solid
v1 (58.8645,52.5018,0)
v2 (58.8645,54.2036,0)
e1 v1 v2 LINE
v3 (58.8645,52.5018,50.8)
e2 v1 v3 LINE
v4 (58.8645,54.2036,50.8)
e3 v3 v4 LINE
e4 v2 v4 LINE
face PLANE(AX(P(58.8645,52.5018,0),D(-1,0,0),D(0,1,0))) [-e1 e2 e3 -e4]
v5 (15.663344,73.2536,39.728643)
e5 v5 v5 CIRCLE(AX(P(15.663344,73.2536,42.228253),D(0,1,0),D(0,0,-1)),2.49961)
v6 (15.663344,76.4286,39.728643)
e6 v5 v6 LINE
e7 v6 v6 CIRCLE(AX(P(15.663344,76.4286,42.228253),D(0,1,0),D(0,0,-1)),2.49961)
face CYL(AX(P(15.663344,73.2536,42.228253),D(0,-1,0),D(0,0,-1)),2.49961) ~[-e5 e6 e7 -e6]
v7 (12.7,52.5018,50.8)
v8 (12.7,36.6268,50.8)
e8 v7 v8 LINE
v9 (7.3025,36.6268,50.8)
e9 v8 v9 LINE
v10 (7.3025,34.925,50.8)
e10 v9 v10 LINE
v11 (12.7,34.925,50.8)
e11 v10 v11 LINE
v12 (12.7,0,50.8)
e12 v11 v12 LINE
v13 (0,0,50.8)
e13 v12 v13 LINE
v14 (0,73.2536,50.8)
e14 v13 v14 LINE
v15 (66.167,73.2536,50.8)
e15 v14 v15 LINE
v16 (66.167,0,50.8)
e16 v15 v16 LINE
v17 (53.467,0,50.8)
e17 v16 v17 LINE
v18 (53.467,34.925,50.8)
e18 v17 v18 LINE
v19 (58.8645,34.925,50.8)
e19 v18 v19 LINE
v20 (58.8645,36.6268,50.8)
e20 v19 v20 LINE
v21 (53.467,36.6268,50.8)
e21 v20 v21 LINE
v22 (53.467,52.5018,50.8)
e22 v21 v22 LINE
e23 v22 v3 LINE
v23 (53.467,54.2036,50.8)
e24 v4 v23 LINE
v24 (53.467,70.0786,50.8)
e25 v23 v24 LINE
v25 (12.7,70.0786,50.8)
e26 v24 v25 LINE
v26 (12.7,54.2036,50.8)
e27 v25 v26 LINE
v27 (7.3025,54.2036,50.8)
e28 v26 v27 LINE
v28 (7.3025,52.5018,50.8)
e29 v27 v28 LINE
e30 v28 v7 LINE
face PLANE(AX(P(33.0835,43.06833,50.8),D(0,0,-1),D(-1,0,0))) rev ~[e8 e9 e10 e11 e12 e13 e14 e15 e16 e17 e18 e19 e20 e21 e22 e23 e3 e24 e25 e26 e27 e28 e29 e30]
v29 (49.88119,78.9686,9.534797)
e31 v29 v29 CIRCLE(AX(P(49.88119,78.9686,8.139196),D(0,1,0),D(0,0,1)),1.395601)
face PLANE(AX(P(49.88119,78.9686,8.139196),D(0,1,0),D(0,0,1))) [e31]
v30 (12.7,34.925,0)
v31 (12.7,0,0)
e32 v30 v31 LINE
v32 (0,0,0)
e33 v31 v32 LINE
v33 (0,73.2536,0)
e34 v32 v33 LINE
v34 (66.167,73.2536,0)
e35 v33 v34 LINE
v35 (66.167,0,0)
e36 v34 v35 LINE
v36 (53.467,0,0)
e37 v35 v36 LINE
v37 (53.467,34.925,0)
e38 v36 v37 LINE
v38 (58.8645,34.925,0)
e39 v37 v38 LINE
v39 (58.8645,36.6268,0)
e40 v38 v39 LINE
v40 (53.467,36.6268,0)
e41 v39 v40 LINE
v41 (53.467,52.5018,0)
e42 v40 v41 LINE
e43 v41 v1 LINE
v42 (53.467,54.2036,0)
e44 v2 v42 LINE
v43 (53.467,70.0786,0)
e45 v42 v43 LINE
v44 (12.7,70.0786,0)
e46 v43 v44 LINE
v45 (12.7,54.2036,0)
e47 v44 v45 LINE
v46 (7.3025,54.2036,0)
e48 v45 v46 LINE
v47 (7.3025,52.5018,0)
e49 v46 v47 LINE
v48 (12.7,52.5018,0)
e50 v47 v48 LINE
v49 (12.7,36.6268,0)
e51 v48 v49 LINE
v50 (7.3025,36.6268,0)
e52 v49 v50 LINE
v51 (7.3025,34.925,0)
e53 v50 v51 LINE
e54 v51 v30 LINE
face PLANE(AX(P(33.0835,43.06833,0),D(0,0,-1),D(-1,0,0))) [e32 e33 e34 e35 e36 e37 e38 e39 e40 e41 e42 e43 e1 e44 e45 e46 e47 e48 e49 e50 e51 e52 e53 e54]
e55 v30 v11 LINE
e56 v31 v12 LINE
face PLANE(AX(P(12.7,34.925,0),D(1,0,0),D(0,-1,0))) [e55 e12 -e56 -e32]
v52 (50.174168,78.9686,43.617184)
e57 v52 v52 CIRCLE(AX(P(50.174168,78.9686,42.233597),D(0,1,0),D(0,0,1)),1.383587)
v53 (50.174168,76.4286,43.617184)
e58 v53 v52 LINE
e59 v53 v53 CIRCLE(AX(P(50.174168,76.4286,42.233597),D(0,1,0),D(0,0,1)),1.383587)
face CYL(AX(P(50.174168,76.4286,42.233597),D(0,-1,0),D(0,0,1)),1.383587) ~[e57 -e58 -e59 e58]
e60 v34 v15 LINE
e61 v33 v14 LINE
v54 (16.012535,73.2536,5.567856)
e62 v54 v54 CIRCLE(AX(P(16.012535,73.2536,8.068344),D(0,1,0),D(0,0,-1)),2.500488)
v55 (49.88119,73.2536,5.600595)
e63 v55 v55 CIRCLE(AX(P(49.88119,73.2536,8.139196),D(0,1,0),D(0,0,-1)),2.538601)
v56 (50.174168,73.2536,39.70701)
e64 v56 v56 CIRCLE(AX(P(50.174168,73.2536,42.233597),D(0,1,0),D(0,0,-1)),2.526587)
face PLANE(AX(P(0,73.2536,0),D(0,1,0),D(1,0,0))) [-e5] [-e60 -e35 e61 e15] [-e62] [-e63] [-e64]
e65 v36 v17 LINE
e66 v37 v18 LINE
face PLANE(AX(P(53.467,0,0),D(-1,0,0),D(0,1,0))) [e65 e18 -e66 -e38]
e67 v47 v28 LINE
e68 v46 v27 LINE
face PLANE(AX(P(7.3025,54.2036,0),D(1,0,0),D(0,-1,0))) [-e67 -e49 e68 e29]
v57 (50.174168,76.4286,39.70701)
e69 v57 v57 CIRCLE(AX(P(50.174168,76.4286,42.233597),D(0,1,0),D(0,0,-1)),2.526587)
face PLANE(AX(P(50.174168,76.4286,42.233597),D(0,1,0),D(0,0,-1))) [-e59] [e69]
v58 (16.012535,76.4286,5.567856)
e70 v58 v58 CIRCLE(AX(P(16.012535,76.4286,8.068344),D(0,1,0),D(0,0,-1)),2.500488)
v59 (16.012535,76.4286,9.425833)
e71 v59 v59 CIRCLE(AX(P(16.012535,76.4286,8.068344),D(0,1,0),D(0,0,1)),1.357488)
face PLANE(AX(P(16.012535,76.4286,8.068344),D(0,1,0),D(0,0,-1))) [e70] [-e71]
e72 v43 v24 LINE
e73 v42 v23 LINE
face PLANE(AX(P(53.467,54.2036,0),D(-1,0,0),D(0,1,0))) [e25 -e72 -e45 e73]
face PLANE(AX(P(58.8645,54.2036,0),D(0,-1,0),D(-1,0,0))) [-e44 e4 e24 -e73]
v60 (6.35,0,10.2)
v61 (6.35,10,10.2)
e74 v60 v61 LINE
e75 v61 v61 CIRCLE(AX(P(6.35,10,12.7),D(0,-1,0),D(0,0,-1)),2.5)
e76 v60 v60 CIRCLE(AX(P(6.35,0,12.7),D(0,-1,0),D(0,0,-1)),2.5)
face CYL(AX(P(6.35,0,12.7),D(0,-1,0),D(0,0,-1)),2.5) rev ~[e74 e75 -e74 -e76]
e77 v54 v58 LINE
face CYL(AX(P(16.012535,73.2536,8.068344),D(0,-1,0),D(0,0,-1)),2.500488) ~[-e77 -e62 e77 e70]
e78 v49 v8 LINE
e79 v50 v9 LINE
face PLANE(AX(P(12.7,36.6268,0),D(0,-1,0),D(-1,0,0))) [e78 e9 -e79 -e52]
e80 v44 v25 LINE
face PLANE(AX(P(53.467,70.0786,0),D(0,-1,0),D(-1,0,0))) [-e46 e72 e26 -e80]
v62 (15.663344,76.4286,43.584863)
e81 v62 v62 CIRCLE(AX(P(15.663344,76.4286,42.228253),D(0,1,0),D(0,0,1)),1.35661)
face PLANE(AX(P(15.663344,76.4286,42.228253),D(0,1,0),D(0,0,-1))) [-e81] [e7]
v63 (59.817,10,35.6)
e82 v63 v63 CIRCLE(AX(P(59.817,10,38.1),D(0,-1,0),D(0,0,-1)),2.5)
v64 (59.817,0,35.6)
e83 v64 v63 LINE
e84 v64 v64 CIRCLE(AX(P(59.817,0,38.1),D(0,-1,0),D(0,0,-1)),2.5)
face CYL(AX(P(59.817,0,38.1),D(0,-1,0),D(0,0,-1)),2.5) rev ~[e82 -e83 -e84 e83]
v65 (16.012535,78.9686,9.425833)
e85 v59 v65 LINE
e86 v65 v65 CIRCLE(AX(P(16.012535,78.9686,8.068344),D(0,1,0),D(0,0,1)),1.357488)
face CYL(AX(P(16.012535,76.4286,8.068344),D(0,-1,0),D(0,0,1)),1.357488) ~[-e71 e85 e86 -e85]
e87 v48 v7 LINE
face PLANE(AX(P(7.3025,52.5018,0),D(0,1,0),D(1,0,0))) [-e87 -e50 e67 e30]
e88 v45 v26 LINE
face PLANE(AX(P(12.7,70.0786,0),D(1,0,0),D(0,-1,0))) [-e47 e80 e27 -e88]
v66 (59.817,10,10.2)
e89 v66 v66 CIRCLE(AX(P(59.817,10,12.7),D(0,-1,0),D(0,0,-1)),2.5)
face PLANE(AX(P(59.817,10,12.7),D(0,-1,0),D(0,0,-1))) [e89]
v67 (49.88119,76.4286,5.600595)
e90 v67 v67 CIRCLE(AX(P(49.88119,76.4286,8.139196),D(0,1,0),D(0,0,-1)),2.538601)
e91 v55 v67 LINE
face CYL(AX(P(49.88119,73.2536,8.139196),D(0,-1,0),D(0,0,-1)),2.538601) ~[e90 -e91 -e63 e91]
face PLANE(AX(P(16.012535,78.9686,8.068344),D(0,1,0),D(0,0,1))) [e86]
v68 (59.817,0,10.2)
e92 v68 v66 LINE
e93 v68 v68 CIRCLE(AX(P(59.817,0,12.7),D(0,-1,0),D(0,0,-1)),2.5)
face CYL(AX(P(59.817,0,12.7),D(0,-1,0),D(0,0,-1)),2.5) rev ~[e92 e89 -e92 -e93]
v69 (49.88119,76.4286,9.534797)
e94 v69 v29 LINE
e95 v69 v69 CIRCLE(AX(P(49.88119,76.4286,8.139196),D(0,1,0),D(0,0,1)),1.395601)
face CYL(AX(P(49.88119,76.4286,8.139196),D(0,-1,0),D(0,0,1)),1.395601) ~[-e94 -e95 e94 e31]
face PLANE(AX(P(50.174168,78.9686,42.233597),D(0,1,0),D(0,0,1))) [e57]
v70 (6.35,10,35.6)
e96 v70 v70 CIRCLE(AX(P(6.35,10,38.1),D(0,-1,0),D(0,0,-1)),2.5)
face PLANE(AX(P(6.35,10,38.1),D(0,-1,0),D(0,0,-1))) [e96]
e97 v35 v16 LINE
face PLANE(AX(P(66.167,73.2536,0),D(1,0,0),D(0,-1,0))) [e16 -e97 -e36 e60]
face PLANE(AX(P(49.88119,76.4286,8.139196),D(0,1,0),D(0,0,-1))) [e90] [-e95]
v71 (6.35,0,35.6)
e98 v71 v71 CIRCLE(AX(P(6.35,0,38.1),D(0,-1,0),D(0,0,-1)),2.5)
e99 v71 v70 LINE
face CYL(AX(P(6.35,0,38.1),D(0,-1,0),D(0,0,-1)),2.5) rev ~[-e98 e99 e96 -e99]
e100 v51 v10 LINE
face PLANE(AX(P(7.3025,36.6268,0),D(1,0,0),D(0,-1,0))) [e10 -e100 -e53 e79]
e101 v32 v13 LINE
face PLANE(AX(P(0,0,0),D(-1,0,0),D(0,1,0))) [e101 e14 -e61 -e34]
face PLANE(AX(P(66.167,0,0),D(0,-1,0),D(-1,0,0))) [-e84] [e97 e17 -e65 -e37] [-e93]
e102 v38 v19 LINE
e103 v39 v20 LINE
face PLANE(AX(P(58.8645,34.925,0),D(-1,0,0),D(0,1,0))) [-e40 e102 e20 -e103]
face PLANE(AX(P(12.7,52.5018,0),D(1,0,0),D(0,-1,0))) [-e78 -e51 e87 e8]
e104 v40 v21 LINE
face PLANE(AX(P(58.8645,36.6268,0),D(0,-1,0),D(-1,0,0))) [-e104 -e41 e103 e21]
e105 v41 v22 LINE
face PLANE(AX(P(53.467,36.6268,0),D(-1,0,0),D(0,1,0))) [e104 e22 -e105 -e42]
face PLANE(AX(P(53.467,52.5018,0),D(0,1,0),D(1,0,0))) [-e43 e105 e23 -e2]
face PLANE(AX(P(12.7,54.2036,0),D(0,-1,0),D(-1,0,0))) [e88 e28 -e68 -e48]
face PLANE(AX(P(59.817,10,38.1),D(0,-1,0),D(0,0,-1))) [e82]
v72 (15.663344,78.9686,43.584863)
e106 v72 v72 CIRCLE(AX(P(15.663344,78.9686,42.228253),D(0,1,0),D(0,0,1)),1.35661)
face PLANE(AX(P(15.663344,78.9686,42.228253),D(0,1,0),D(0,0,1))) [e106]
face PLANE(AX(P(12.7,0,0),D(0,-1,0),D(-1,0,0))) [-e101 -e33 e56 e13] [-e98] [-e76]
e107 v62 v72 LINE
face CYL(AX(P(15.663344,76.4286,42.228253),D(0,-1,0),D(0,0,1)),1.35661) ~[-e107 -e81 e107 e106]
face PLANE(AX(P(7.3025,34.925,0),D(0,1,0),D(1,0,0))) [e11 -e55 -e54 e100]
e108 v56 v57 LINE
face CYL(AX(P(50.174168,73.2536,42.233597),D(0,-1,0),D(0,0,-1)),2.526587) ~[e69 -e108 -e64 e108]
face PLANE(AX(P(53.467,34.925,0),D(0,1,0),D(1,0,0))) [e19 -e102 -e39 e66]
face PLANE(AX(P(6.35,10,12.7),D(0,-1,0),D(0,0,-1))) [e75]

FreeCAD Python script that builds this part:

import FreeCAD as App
import Part
import Sketcher

V = App.Vector
Q = App.Units.Quantity

doc = App.newDocument("Part")
body = doc.addObject("PartDesign::Body", "Body")

# Sketch on XY plane
sketch1 = body.newObject("Sketcher::SketchObject", "Sketch")
sketch1.AttachmentSupport = (doc.getObject("XY_Plane"), [""])
sketch1.MapMode = "FlatFace"
sketch1.addGeometry(Part.LineSegment(V(12.7, 54.2, 0), V(12.7, 70.1, 0)), False)
sketch1.addGeometry(Part.LineSegment(V(12.7, 70.1, 0), V(53.5, 70.1, 0)), False)
sketch1.addGeometry(Part.LineSegment(V(53.5, 70.1, 0), V(53.5, 54.2, 0)), False)
sketch1.addGeometry(Part.LineSegment(V(53.5, 54.2, 0), V(58.9, 54.2, 0)), False)
sketch1.addGeometry(Part.LineSegment(V(58.9, 54.2, 0), V(58.9, 52.5, 0)), False)
sketch1.addGeometry(Part.LineSegment(V(58.9, 52.5, 0), V(53.5, 52.5, 0)), False)
sketch1.addGeometry(Part.LineSegment(V(53.5, 52.5, 0), V(53.5, 36.6, 0)), False)
sketch1.addGeometry(Part.LineSegment(V(53.5, 36.6, 0), V(58.9, 36.6, 0)), False)
sketch1.addGeometry(Part.LineSegment(V(58.9, 36.6, 0), V(58.9, 34.9, 0)), False)
sketch1.addGeometry(Part.LineSegment(V(58.9, 34.9, 0), V(53.5, 34.9, 0)), False)
sketch1.addGeometry(Part.LineSegment(V(53.5, 34.9, 0), V(53.5, 0, 0)), False)
sketch1.addGeometry(Part.LineSegment(V(53.5, 0, 0), V(66.2, 0, 0)), False)
sketch1.addGeometry(Part.LineSegment(V(66.2, 0, 0), V(66.2, 73.3, 0)), False)
sketch1.addGeometry(Part.LineSegment(V(66.2, 73.3, 0), V(0, 73.3, 0)), False)
sketch1.addGeometry(Part.LineSegment(V(0, 73.3, 0), V(0, 0, 0)), False)
sketch1.addGeometry(Part.LineSegment(V(0, 0, 0), V(12.7, 0, 0)), False)
sketch1.addGeometry(Part.LineSegment(V(12.7, 0, 0), V(12.7, 34.9, 0)), False)
sketch1.addGeometry(Part.LineSegment(V(12.7, 34.9, 0), V(7.3, 34.9, 0)), False)
sketch1.addGeometry(Part.LineSegment(V(7.3, 34.9, 0), V(7.3, 36.6, 0)), False)
sketch1.addGeometry(Part.LineSegment(V(7.3, 36.6, 0), V(12.7, 36.6, 0)), False)
sketch1.addGeometry(Part.LineSegment(V(12.7, 36.6, 0), V(12.7, 52.5, 0)), False)
sketch1.addGeometry(Part.LineSegment(V(12.7, 52.5, 0), V(7.3, 52.5, 0)), False)
sketch1.addGeometry(Part.LineSegment(V(7.3, 52.5, 0), V(7.3, 54.2, 0)), False)
sketch1.addGeometry(Part.LineSegment(V(7.3, 54.2, 0), V(12.7, 54.2, 0)), False)
sketch1.addConstraint(Sketcher.Constraint("Coincident", 0, 2, 1, 1))
sketch1.addConstraint(Sketcher.Constraint("Coincident", 1, 2, 2, 1))
sketch1.addConstraint(Sketcher.Constraint("Coincident", 2, 2, 3, 1))
sketch1.addConstraint(Sketcher.Constraint("Coincident", 3, 2, 4, 1))
sketch1.addConstraint(Sketcher.Constraint("Coincident", 4, 2, 5, 1))
sketch1.addConstraint(Sketcher.Constraint("Coincident", 5, 2, 6, 1))
sketch1.addConstraint(Sketcher.Constraint("Coincident", 6, 2, 7, 1))
sketch1.addConstraint(Sketcher.Constraint("Coincident", 7, 2, 8, 1))
sketch1.addConstraint(Sketcher.Constraint("Coincident", 8, 2, 9, 1))
sketch1.addConstraint(Sketcher.Constraint("Coincident", 9, 2, 10, 1))
sketch1.addConstraint(Sketcher.Constraint("Coincident", 10, 2, 11, 1))
sketch1.addConstraint(Sketcher.Constraint("Coincident", 11, 2, 12, 1))
sketch1.addConstraint(Sketcher.Constraint("Coincident", 12, 2, 13, 1))
sketch1.addConstraint(Sketcher.Constraint("Coincident", 13, 2, 14, 1))
sketch1.addConstraint(Sketcher.Constraint("Coincident", 14, 2, 15, 1))
sketch1.addConstraint(Sketcher.Constraint("Coincident", 15, 2, 16, 1))
sketch1.addConstraint(Sketcher.Constraint("Coincident", 16, 2, 17, 1))
sketch1.addConstraint(Sketcher.Constraint("Coincident", 17, 2, 18, 1))
sketch1.addConstraint(Sketcher.Constraint("Coincident", 18, 2, 19, 1))
sketch1.addConstraint(Sketcher.Constraint("Coincident", 19, 2, 20, 1))
sketch1.addConstraint(Sketcher.Constraint("Coincident", 20, 2, 21, 1))
sketch1.addConstraint(Sketcher.Constraint("Coincident", 21, 2, 22, 1))
sketch1.addConstraint(Sketcher.Constraint("Coincident", 22, 2, 23, 1))
sketch1.addConstraint(Sketcher.Constraint("Coincident", 23, 2, 0, 1))
sketch1.addConstraint(Sketcher.Constraint("Vertical", 0))
sketch1.addConstraint(Sketcher.Constraint("Horizontal", 1))
sketch1.addConstraint(Sketcher.Constraint("Vertical", 2))
sketch1.addConstraint(Sketcher.Constraint("Horizontal", 3))
sketch1.addConstraint(Sketcher.Constraint("Vertical", 4))
sketch1.addConstraint(Sketcher.Constraint("Horizontal", 5))
sketch1.addConstraint(Sketcher.Constraint("Vertical", 6))
sketch1.addConstraint(Sketcher.Constraint("Horizontal", 7))
sketch1.addConstraint(Sketcher.Constraint("Vertical", 8))
sketch1.addConstraint(Sketcher.Constraint("Horizontal", 9))
sketch1.addConstraint(Sketcher.Constraint("Vertical", 10))
sketch1.addConstraint(Sketcher.Constraint("Horizontal", 11))
sketch1.addConstraint(Sketcher.Constraint("Vertical", 12))
sketch1.addConstraint(Sketcher.Constraint("Horizontal", 13))
sketch1.addConstraint(Sketcher.Constraint("Vertical", 14))
sketch1.addConstraint(Sketcher.Constraint("Horizontal", 15))
sketch1.addConstraint(Sketcher.Constraint("Vertical", 16))
sketch1.addConstraint(Sketcher.Constraint("Horizontal", 17))
sketch1.addConstraint(Sketcher.Constraint("Vertical", 18))
sketch1.addConstraint(Sketcher.Constraint("Horizontal", 19))
sketch1.addConstraint(Sketcher.Constraint("Vertical", 20))
sketch1.addConstraint(Sketcher.Constraint("Horizontal", 21))
sketch1.addConstraint(Sketcher.Constraint("Vertical", 22))
sketch1.addConstraint(Sketcher.Constraint("Horizontal", 23))
sketch1.addConstraint(Sketcher.Constraint("Coincident", 14, 2, -1, 1))
sketch1.addConstraint(Sketcher.Constraint("PointOnObject", 10, 2, -1))
sketch1.addConstraint(Sketcher.Constraint("Horizontal", 9, 2, 16, 2))
sketch1.addConstraint(Sketcher.Constraint("Horizontal", 7, 2, 18, 2))
sketch1.addConstraint(Sketcher.Constraint("Horizontal", 5, 2, 20, 2))
sketch1.addConstraint(Sketcher.Constraint("Horizontal", 3, 2, 22, 2))
sketch1.addConstraint(Sketcher.Constraint("Vertical", 2, 2, 5, 2))
sketch1.addConstraint(Sketcher.Constraint("Vertical", 4, 2, 7, 2))
sketch1.addConstraint(Sketcher.Constraint("Vertical", 6, 2, 9, 2))
sketch1.addConstraint(Sketcher.Constraint("Vertical", 0, 2, 15, 2))
sketch1.addConstraint(Sketcher.Constraint("Vertical", 16, 2, 19, 2))
sketch1.addConstraint(Sketcher.Constraint("Vertical", 18, 2, 21, 2))
sketch1.addConstraint(Sketcher.Constraint("Equal", 11, 15))
sketch1.addConstraint(Sketcher.Constraint("Equal", 9, 17))
sketch1.addConstraint(Sketcher.Constraint("Equal", 2, 6))
sketch1.addConstraint(Sketcher.Constraint("Equal", 4, 8))
sketch1.addConstraint(Sketcher.Constraint("DistanceX", 11, 1, 11, 2, Q("0.5 in")))
sketch1.addConstraint(Sketcher.Constraint("DistanceX", 1, 1, 1, 2, Q("1.605 in")))
sketch1.addConstraint(Sketcher.Constraint("DistanceY", 0, 1, 0, 2, Q("0.625 in")))
sketch1.addConstraint(Sketcher.Constraint("DistanceY", 4, 2, 4, 1, Q("0.067 in")))
sketch1.addConstraint(Sketcher.Constraint("DistanceY", 10, 2, 10, 1, Q("1.375 in")))
sketch1.addConstraint(Sketcher.Constraint("DistanceY", 12, 1, 12, 2, Q("2.884 in")))
sketch1.addConstraint(Sketcher.Constraint("DistanceX", 3, 1, 3, 2, Q("0.2125 in")))
pad1 = body.newObject("PartDesign::Pad", "Pad")
pad1.Profile = sketch1
pad1.Length = Q("2 in")

# Sketch on XZ plane
sketch2 = body.newObject("Sketcher::SketchObject", "Sketch001")
sketch2.AttachmentSupport = (doc.getObject("XZ_Plane"), [""])
sketch2.MapMode = "FlatFace"
sketch2.AttachmentOffset = App.Placement(V(0, 0, -2.884 * 25.4), App.Rotation())
sketch2.addGeometry(Part.Circle(V(16, 8.1, 0), V(0, 0, 1), 2.5), False)
sketch2.addGeometry(Part.Circle(V(15.7, 42.2, 0), V(0, 0, 1), 2.5), False)
sketch2.addGeometry(Part.Circle(V(50.2, 42.2, 0), V(0, 0, 1), 2.5), False)
sketch2.addGeometry(Part.Circle(V(49.9, 8.1, 0), V(0, 0, 1), 2.5), False)
sketch2.addConstraint(Sketcher.Constraint("Diameter", 3, Q("5.077202 mm")))
sketch2.addConstraint(Sketcher.Constraint("Diameter", 1, Q("4.99922 mm")))
sketch2.addConstraint(Sketcher.Constraint("Diameter", 0, Q("5.000977 mm")))
sketch2.addConstraint(Sketcher.Constraint("Diameter", 2, Q("5.053174 mm")))
sketch2.addConstraint(Sketcher.Constraint("DistanceY", 3, 3, 2, 3, Q("34.094401 mm")))
sketch2.addConstraint(Sketcher.Constraint("DistanceX", -1, 1, 3, 3, Q("49.88119 mm")))
sketch2.addConstraint(Sketcher.Constraint("DistanceX", 1, 3, 0, 3, Q("0.349191 mm")))
sketch2.addConstraint(Sketcher.Constraint("DistanceY", 0, 3, 1, 3, Q("34.159909 mm")))
sketch2.addConstraint(Sketcher.Constraint("DistanceY", 0, 3, 3, 3, Q("0.070852 mm")))
sketch2.addConstraint(Sketcher.Constraint("DistanceX", 3, 3, 2, 3, Q("0.292978 mm")))
sketch2.addConstraint(Sketcher.Constraint("DistanceX", -1, 1, 0, 3, Q("16.012535 mm")))
sketch2.addConstraint(Sketcher.Constraint("DistanceY", -1, 1, 0, 3, Q("8.068344 mm")))
pad2 = body.newObject("PartDesign::Pad", "Pad001")
pad2.Profile = sketch2
pad2.Length = Q("0.125 in")
pad2.Reversed = True

# Sketch on XZ plane
sketch3 = body.newObject("Sketcher::SketchObject", "Sketch002")
sketch3.AttachmentSupport = (doc.getObject("XZ_Plane"), [""])
sketch3.MapMode = "FlatFace"
sketch3.AttachmentOffset = App.Placement(V(0, 0, -3.009 * 25.4), App.Rotation())
sketch3.addGeometry(Part.Circle(V(16, 8.1, 0), V(0, 0, 1), 1.4), False)
sketch3.addGeometry(Part.Circle(V(15.7, 42.2, 0), V(0, 0, 1), 1.4), False)
sketch3.addGeometry(Part.Circle(V(50.2, 42.2, 0), V(0, 0, 1), 1.4), False)
sketch3.addGeometry(Part.Circle(V(49.9, 8.1, 0), V(0, 0, 1), 1.4), False)
sketch3.addConstraint(Sketcher.Constraint("Diameter", 3, Q("2.791202 mm")))
sketch3.addConstraint(Sketcher.Constraint("Diameter", 1, Q("2.71322 mm")))
sketch3.addConstraint(Sketcher.Constraint("Diameter", 0, Q("2.714977 mm")))
sketch3.addConstraint(Sketcher.Constraint("Diameter", 2, Q("2.767174 mm")))
sketch3.addConstraint(Sketcher.Constraint("DistanceY", 3, 3, 2, 3, Q("34.094401 mm")))
sketch3.addConstraint(Sketcher.Constraint("DistanceX", -1, 1, 3, 3, Q("49.88119 mm")))
sketch3.addConstraint(Sketcher.Constraint("DistanceX", 1, 3, 0, 3, Q("0.349191 mm")))
sketch3.addConstraint(Sketcher.Constraint("DistanceY", 0, 3, 1, 3, Q("34.159909 mm")))
sketch3.addConstraint(Sketcher.Constraint("DistanceY", 0, 3, 3, 3, Q("0.070852 mm")))
sketch3.addConstraint(Sketcher.Constraint("DistanceX", 3, 3, 2, 3, Q("0.292978 mm")))
sketch3.addConstraint(Sketcher.Constraint("DistanceX", -1, 1, 0, 3, Q("16.012535 mm")))
sketch3.addConstraint(Sketcher.Constraint("DistanceY", -1, 1, 0, 3, Q("8.068344 mm")))
pad3 = body.newObject("PartDesign::Pad", "Pad002")
pad3.Profile = sketch3
pad3.Length = Q("0.1 in")
pad3.Reversed = True

# Sketch on XZ plane
sketch4 = body.newObject("Sketcher::SketchObject", "Sketch003")
sketch4.AttachmentSupport = (doc.getObject("XZ_Plane"), [""])
sketch4.MapMode = "FlatFace"
sketch4.addGeometry(Part.Circle(V(6.3, 38.1, 0), V(0, 0, 1), 2.5), False)
sketch4.addGeometry(Part.Circle(V(6.3, 12.7, 0), V(0, 0, 1), 2.5), False)
sketch4.addGeometry(Part.Circle(V(59.8, 38.1, 0), V(0, 0, 1), 2.5), False)
sketch4.addGeometry(Part.Circle(V(59.8, 12.7, 0), V(0, 0, 1), 2.5), False)
sketch4.addConstraint(Sketcher.Constraint("Equal", 0, 1))
sketch4.addConstraint(Sketcher.Constraint("Equal", 1, 2))
sketch4.addConstraint(Sketcher.Constraint("Equal", 2, 3))
sketch4.addConstraint(Sketcher.Constraint("Horizontal", 0, 3, 2, 3))
sketch4.addConstraint(Sketcher.Constraint("Horizontal", 1, 3, 3, 3))
sketch4.addConstraint(Sketcher.Constraint("Vertical", 0, 3, 1, 3))
sketch4.addConstraint(Sketcher.Constraint("Vertical", 2, 3, 3, 3))
sketch4.addConstraint(Sketcher.Constraint("DistanceY", 1, 3, 0, 3, Q("1 in")))
sketch4.addConstraint(Sketcher.Constraint("DistanceY", -1, 1, 0, 3, Q("1.5 in")))
sketch4.addConstraint(Sketcher.Constraint("Diameter", 0, Q("5 mm")))
sketch4.addConstraint(Sketcher.Constraint("DistanceX", -1, 1, 0, 3, Q("0.25 in")))
sketch4.addConstraint(Sketcher.Constraint("DistanceX", -1, 1, 2, 3, Q("2.355 in")))
pocket1 = body.newObject("PartDesign::Pocket", "Pocket")
pocket1.Profile = sketch4
pocket1.Length = 10

doc.recompute()
